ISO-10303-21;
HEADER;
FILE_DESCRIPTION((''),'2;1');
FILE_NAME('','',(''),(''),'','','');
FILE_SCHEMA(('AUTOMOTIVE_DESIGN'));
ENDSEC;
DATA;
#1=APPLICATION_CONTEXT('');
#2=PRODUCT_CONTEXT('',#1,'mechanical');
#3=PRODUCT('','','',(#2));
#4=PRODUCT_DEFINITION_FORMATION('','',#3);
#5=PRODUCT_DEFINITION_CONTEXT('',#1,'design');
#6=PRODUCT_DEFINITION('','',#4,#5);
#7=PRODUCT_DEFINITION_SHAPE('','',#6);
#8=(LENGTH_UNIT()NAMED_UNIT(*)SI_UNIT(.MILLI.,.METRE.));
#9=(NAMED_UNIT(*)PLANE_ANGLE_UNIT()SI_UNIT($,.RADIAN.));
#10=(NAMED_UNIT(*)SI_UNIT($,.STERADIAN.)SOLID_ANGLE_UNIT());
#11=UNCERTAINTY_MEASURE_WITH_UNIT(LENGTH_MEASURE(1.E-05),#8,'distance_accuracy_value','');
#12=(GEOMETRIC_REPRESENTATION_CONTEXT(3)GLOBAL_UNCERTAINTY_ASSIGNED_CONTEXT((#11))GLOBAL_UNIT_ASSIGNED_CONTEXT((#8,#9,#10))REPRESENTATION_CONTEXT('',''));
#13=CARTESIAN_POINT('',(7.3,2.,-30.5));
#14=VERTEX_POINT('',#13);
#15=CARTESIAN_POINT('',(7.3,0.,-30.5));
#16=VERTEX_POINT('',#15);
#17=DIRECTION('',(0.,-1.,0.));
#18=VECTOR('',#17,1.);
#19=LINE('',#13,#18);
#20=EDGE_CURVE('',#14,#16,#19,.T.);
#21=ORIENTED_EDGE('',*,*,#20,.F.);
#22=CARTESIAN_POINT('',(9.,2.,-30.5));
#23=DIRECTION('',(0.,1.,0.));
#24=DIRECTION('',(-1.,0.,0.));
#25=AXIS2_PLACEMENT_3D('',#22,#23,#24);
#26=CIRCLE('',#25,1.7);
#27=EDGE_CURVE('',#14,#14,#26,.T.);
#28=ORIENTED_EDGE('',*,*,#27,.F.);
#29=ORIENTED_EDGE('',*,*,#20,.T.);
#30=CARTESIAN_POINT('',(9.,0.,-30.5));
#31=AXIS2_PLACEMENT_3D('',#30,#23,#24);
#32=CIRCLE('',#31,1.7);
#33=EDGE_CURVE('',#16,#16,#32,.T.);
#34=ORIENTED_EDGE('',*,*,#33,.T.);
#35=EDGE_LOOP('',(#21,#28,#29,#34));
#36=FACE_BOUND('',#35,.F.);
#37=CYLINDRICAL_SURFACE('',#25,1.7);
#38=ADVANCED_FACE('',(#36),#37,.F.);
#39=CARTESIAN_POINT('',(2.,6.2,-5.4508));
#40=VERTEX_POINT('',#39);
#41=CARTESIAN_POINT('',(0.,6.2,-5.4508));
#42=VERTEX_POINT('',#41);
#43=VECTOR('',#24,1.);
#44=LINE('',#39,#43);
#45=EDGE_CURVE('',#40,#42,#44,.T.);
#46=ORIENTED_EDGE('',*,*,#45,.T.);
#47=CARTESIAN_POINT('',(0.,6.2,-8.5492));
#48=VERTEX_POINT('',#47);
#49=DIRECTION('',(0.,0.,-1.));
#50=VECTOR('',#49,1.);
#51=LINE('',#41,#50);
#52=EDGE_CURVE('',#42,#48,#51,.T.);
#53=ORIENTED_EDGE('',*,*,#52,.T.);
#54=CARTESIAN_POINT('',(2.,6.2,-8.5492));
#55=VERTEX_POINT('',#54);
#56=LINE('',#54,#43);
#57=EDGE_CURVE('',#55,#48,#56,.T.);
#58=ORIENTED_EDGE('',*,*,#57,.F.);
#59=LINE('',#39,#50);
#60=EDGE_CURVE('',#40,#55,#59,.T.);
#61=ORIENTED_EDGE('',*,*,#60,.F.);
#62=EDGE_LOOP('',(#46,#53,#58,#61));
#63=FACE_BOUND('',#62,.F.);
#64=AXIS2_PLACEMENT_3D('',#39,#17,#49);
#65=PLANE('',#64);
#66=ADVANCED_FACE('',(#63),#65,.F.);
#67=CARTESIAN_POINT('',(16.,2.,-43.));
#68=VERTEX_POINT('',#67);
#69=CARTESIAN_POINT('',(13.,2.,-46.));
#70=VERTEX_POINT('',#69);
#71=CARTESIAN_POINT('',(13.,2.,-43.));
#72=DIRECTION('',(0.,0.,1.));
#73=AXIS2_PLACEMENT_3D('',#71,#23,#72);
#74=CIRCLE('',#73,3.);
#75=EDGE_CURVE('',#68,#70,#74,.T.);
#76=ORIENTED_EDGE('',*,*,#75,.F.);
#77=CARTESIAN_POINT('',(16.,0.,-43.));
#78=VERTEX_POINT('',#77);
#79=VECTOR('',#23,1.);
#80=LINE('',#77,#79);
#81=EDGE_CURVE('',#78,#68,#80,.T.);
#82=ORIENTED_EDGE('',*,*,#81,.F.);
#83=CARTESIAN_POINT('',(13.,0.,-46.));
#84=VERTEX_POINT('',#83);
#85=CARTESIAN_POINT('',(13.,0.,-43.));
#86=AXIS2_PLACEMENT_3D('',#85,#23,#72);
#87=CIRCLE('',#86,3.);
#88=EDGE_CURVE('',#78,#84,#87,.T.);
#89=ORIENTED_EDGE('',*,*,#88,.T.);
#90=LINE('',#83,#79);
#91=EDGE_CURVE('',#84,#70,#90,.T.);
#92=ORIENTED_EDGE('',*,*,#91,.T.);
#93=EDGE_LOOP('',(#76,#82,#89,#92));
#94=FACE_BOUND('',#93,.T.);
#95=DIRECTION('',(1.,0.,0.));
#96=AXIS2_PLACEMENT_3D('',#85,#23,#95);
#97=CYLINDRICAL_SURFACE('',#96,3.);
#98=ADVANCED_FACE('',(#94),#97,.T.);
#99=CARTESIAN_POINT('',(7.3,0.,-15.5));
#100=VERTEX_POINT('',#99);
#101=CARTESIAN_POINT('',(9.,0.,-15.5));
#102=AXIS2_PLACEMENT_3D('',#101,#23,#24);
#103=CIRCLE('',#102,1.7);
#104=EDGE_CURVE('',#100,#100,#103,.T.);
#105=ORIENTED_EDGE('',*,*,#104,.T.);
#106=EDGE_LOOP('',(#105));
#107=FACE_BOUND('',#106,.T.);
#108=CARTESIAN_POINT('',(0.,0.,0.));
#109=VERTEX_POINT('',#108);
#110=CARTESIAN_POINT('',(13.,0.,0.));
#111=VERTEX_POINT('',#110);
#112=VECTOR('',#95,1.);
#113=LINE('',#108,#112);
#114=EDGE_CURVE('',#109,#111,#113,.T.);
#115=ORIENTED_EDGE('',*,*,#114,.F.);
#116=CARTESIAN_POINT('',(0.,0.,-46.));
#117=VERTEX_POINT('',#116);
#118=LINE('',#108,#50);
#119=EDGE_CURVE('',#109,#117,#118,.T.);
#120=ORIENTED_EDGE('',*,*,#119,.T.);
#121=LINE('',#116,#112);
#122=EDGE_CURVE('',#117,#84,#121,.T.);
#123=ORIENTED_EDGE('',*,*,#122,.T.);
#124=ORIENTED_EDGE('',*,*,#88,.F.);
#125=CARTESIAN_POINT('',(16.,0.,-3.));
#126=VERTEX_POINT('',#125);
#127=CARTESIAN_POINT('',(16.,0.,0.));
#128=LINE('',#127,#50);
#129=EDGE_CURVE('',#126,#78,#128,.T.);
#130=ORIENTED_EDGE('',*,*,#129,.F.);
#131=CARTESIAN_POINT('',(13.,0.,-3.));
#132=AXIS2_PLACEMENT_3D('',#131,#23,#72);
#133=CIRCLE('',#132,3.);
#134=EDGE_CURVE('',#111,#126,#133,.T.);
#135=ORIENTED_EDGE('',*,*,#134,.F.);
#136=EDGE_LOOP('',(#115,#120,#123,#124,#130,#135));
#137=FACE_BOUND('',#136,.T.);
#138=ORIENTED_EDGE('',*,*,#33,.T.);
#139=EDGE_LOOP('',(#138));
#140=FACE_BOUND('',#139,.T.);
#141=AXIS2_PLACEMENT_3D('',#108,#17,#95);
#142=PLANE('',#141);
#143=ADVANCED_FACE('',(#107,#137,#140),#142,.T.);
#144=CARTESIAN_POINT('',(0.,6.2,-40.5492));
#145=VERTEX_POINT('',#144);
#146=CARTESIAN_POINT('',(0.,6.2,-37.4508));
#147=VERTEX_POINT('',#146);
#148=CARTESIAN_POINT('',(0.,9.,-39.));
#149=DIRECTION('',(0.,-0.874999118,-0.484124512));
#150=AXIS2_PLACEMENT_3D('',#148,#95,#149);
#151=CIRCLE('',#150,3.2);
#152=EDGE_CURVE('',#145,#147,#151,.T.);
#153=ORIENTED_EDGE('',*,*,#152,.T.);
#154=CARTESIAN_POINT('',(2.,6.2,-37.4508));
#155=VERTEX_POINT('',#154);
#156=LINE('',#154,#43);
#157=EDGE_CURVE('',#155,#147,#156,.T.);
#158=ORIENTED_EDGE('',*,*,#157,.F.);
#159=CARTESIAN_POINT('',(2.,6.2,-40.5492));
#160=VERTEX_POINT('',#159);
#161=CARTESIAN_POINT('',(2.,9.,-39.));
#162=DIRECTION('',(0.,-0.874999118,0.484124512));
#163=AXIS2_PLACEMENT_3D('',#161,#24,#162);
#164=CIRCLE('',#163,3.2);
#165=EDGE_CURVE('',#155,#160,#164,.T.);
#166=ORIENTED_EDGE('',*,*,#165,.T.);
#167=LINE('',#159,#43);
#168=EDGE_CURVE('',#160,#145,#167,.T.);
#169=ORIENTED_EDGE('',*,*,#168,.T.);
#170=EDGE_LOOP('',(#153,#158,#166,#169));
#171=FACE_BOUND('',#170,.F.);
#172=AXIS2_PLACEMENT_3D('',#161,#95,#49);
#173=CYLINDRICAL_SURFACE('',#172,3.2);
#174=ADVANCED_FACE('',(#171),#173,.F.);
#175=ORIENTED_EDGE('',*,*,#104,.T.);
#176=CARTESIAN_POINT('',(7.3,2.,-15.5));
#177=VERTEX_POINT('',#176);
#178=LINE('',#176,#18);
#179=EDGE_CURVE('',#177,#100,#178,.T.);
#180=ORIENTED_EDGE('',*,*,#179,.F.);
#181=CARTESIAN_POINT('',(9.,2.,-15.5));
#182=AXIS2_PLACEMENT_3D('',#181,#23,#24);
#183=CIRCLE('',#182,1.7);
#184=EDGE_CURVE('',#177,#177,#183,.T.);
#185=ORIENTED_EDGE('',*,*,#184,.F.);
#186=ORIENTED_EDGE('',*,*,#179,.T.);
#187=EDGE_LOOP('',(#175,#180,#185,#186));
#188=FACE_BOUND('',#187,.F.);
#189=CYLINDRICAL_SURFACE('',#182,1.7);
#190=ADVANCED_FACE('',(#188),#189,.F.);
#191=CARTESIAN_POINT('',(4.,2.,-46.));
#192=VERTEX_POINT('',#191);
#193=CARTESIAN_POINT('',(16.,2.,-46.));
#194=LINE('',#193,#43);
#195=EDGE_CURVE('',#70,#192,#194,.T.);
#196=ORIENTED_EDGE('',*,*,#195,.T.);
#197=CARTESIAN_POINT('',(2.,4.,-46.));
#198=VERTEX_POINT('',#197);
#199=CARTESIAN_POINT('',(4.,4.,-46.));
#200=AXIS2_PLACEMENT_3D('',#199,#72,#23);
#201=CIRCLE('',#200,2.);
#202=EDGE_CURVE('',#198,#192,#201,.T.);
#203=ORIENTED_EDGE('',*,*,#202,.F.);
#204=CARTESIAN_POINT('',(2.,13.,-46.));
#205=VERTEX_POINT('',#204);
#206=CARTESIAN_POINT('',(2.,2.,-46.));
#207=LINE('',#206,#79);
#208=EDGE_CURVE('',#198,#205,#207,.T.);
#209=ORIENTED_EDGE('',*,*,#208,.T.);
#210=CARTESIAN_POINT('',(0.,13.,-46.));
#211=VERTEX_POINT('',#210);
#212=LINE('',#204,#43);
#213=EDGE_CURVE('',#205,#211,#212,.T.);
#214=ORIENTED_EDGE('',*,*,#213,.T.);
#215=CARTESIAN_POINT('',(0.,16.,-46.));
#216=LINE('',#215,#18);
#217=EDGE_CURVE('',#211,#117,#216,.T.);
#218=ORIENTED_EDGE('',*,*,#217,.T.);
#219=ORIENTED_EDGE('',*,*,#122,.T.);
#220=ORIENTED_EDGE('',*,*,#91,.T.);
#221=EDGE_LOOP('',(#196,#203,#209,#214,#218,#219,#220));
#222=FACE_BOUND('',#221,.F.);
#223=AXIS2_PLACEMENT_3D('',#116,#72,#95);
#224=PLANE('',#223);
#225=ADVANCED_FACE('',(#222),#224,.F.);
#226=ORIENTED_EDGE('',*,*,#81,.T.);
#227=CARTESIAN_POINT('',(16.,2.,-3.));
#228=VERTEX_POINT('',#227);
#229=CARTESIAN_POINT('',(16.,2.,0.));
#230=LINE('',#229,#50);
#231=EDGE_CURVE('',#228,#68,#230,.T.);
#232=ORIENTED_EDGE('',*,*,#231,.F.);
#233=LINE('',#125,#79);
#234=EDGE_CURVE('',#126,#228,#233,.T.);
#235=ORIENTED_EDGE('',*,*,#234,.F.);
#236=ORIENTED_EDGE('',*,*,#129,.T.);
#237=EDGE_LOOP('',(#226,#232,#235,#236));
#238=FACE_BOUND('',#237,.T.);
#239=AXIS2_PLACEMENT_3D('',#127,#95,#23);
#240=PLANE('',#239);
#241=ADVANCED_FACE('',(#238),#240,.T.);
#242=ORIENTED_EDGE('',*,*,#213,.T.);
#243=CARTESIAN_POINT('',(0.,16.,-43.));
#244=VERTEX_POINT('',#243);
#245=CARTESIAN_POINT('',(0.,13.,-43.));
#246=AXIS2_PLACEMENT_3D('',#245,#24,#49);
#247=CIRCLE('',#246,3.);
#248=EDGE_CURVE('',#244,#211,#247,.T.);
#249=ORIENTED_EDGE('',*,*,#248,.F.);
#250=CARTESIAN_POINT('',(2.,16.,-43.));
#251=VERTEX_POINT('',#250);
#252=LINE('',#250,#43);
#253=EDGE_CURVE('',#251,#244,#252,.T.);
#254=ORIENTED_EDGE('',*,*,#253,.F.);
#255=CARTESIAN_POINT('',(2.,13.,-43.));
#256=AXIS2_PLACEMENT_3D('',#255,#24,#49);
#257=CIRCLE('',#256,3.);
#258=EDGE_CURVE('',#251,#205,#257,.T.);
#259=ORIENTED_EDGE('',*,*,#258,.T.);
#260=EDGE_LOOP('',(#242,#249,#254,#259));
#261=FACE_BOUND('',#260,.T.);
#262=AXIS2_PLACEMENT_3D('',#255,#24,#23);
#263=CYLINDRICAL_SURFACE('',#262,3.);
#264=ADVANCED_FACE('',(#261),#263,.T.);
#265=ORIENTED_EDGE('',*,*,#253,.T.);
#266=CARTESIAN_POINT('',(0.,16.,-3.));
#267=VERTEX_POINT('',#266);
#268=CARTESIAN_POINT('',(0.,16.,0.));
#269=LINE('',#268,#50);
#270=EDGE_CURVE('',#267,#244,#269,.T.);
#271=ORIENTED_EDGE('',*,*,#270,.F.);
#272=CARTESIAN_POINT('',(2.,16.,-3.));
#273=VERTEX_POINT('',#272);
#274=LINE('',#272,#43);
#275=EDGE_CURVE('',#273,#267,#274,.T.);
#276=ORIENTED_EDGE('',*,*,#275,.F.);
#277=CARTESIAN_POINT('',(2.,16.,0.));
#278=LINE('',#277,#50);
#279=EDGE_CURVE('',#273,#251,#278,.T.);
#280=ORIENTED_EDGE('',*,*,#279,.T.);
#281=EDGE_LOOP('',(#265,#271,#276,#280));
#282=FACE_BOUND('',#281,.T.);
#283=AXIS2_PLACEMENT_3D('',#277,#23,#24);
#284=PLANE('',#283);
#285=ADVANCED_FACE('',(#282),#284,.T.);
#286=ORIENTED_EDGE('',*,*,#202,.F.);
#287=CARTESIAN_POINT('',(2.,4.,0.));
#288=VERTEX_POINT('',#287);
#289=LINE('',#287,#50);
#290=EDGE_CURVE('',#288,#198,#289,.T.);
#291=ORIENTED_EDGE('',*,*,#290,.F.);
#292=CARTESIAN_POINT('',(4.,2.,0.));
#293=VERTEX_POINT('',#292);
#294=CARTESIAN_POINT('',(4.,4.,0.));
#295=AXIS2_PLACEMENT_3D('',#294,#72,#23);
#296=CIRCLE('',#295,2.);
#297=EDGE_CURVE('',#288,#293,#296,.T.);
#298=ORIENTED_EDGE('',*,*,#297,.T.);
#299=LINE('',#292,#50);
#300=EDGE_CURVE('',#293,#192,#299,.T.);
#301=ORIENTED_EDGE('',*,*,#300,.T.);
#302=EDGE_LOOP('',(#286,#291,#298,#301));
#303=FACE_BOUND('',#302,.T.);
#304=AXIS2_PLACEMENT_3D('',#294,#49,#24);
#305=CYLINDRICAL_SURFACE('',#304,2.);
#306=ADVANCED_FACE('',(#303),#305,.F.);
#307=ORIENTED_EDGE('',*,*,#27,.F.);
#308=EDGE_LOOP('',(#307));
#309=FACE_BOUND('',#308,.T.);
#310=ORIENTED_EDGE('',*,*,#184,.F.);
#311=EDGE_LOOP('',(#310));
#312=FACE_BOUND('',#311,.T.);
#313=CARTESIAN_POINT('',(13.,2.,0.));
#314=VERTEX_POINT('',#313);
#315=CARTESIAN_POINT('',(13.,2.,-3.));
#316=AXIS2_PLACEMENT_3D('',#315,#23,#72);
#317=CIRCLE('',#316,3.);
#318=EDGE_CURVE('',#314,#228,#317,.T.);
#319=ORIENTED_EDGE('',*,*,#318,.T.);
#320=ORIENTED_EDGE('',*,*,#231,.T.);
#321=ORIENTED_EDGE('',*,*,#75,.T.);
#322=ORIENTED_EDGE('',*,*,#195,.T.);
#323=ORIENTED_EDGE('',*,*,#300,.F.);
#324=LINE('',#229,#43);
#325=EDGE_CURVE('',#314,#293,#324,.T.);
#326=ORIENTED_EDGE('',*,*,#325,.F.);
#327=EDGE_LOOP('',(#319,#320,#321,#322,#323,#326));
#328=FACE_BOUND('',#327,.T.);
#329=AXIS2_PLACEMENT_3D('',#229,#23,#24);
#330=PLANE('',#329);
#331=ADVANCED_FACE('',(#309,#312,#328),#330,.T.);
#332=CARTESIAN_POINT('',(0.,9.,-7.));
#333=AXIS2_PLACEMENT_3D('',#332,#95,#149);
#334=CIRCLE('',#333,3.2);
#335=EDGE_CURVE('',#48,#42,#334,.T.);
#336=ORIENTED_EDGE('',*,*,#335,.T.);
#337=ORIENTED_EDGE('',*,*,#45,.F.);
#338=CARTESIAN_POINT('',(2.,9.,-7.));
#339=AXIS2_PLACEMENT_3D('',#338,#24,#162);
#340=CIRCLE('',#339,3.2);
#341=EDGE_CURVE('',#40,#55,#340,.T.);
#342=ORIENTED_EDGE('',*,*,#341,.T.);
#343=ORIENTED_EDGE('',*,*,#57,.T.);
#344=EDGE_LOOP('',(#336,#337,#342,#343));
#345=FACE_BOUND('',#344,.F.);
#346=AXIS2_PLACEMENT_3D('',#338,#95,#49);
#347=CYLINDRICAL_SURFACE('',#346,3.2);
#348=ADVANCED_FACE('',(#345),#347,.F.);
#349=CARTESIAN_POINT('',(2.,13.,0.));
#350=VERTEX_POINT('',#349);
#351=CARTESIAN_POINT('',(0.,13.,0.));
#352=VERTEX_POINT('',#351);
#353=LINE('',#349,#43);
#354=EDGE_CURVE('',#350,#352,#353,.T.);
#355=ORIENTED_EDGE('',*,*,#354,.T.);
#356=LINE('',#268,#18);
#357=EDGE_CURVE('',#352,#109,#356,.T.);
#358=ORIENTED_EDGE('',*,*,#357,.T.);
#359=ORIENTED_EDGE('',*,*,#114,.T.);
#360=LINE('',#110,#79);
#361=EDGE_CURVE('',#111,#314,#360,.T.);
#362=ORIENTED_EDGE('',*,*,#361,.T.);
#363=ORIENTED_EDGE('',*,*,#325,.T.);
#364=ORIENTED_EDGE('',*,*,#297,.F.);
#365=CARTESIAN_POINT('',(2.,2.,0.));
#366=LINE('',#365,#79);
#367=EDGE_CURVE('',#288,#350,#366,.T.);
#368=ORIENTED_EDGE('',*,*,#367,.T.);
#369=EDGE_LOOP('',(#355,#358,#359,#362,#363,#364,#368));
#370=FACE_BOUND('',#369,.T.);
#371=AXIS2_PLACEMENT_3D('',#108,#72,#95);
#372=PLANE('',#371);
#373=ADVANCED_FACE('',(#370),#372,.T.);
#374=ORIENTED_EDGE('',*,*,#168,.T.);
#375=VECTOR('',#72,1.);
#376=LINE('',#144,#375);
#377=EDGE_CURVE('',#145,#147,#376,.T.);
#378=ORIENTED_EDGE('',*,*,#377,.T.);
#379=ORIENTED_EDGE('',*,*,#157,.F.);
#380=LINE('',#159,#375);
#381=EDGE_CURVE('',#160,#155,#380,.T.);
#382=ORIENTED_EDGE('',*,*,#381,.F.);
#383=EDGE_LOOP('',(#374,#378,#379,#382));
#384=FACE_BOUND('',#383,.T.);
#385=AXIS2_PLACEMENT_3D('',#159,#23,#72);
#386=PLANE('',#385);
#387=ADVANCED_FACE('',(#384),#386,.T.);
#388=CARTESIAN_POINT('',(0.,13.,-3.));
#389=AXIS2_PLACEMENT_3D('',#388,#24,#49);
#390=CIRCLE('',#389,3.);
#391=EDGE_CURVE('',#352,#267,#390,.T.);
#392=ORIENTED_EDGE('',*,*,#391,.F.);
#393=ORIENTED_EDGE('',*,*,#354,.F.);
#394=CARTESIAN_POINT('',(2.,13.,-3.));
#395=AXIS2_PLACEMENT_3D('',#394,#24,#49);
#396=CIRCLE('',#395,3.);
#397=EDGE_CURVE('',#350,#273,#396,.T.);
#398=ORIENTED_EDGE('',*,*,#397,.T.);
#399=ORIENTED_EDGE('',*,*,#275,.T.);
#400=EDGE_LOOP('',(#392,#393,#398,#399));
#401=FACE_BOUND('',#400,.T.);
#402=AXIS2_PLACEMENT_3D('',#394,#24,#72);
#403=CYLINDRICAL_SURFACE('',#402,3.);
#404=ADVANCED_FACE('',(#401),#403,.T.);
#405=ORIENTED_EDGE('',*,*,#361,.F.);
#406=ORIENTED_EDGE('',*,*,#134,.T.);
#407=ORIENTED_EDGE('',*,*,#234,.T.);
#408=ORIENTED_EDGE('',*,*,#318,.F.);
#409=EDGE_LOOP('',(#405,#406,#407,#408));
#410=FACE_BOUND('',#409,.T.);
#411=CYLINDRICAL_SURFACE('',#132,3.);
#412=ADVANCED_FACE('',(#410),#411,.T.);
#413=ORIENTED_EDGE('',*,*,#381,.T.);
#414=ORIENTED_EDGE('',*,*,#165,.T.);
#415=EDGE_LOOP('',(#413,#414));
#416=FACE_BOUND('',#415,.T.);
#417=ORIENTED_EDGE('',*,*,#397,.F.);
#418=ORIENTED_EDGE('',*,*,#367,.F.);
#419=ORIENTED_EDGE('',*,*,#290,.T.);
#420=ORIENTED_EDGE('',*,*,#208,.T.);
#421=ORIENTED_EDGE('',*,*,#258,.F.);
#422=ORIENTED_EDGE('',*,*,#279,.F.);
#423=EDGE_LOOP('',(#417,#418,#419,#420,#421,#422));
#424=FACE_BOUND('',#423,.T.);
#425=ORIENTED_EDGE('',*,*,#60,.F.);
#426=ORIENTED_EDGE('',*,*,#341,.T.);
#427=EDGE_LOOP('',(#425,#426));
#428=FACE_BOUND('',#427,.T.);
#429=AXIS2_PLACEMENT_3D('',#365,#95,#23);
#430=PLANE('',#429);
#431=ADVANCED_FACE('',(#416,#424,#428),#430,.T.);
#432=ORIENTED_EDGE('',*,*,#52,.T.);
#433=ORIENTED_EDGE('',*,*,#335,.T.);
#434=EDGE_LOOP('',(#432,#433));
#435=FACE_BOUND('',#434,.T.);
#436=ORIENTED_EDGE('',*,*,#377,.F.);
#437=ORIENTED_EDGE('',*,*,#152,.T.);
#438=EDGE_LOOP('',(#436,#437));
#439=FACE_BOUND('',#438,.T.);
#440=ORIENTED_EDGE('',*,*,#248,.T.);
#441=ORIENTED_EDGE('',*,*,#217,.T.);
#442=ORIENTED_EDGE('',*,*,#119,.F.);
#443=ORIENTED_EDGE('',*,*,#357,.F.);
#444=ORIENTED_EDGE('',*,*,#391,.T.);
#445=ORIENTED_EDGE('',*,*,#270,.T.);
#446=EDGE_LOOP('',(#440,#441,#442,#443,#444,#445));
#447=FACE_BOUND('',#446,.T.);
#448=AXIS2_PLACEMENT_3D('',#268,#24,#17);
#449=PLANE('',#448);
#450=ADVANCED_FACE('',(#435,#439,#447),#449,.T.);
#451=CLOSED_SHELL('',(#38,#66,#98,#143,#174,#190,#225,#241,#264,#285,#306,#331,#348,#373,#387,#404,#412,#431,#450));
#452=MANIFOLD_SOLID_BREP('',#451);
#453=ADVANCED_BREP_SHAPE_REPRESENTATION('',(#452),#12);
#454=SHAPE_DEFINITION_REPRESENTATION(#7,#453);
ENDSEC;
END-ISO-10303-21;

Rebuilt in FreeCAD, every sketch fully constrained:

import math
import FreeCAD as App
import Part
import Sketcher


def edges_at(feature, points):
    """Names of the edges that pass closest to the given points."""
    edges = feature.Shape.Edges
    near = lambda p: min(range(len(edges)), key=lambda i: edges[i].distToShape(Part.Vertex(*p))[0])
    return sorted({f"Edge{near(p) + 1}" for p in points})

doc = App.newDocument("Part")
body = doc.addObject("PartDesign::Body", "Body")

# Sketch on XY plane
sketch1 = doc.addObject("Sketcher::SketchObject", "Sketch")
body.addObject(sketch1)
sketch1.AttachmentSupport = (doc.XY_Plane, [""])
sketch1.MapMode = "FlatFace"
sketch1.addGeometry(Part.LineSegment(App.Vector(0, 16, 0), App.Vector(0, 0, 0)), False)
sketch1.addGeometry(Part.LineSegment(App.Vector(0, 0, 0), App.Vector(16, 0, 0)), False)
sketch1.addGeometry(Part.LineSegment(App.Vector(16, 0, 0), App.Vector(16, 2, 0)), False)
sketch1.addGeometry(Part.LineSegment(App.Vector(16, 2, 0), App.Vector(2, 2, 0)), False)
sketch1.addGeometry(Part.LineSegment(App.Vector(2, 2, 0), App.Vector(2, 16, 0)), False)
sketch1.addGeometry(Part.LineSegment(App.Vector(2, 16, 0), App.Vector(0, 16, 0)), False)
sketch1.addConstraint(Sketcher.Constraint("Coincident", 0, 2, 1, 1))
sketch1.addConstraint(Sketcher.Constraint("Coincident", 1, 2, 2, 1))
sketch1.addConstraint(Sketcher.Constraint("Coincident", 2, 2, 3, 1))
sketch1.addConstraint(Sketcher.Constraint("Coincident", 3, 2, 4, 1))
sketch1.addConstraint(Sketcher.Constraint("Coincident", 4, 2, 5, 1))
sketch1.addConstraint(Sketcher.Constraint("Coincident", 5, 2, 0, 1))
sketch1.addConstraint(Sketcher.Constraint("Vertical", 0))
sketch1.addConstraint(Sketcher.Constraint("Horizontal", 1))
sketch1.addConstraint(Sketcher.Constraint("Vertical", 2))
sketch1.addConstraint(Sketcher.Constraint("Horizontal", 3))
sketch1.addConstraint(Sketcher.Constraint("Vertical", 4))
sketch1.addConstraint(Sketcher.Constraint("Horizontal", 5))
sketch1.addConstraint(Sketcher.Constraint("Coincident", 0, 2, -1, 1))
sketch1.addConstraint(Sketcher.Constraint("Equal", 1, 0))
sketch1.addConstraint(Sketcher.Constraint("Equal", 5, 2))
sketch1.addConstraint(Sketcher.Constraint("DistanceX", 1, 1, 1, 2, 16.0))
sketch1.addConstraint(Sketcher.Constraint("DistanceX", 5, 2, 5, 1, 2.0))
pad1 = doc.addObject("PartDesign::Pad", "Pad")
body.addObject(pad1)
pad1.Profile = sketch1
pad1.Length = 46
pad1.Reversed = True

# Sketch on XZ plane
sketch2 = doc.addObject("Sketcher::SketchObject", "Sketch001")
body.addObject(sketch2)
sketch2.AttachmentSupport = (doc.XZ_Plane, [""])
sketch2.MapMode = "FlatFace"
sketch2.AttachmentOffset = App.Placement(App.Vector(0, 0, -2), App.Rotation())
sketch2.addGeometry(Part.Circle(App.Vector(9, -15.5, 0), App.Vector(0, 0, 1), 1.7), False)
sketch2.addGeometry(Part.Circle(App.Vector(9, -30.5, 0), App.Vector(0, 0, 1), 1.7), False)
sketch2.addConstraint(Sketcher.Constraint("Equal", 0, 1))
sketch2.addConstraint(Sketcher.Constraint("Vertical", 0, 3, 1, 3))
sketch2.addConstraint(Sketcher.Constraint("Diameter", 0, 3.4))
sketch2.addConstraint(Sketcher.Constraint("DistanceX", -1, 1, 0, 3, 9.0))
sketch2.addConstraint(Sketcher.Constraint("DistanceY", 1, 3, 0, 3, 15.0))
sketch2.addConstraint(Sketcher.Constraint("DistanceY", 0, 3, -1, 1, 15.5))
pocket1 = doc.addObject("PartDesign::Pocket", "Pocket")
body.addObject(pocket1)
pocket1.Profile = sketch2
pocket1.Length = 2
pocket1.Reversed = True

# Sketch on YZ plane
sketch3 = doc.addObject("Sketcher::SketchObject", "Sketch002")
body.addObject(sketch3)
sketch3.AttachmentSupport = (doc.YZ_Plane, [""])
sketch3.MapMode = "FlatFace"
sketch3.AttachmentOffset = App.Placement(App.Vector(0, 0, 2), App.Rotation())
sketch3.addGeometry(Part.ArcOfCircle(Part.Circle(App.Vector(9, -7, 0), App.Vector(0, 0, 1), 3.2), math.radians(-151.044871), math.radians(151.044871)), False)
sketch3.addGeometry(Part.LineSegment(App.Vector(6.2, -8.5492, 0), App.Vector(6.2, -5.4508, 0)), False)
sketch3.addGeometry(Part.ArcOfCircle(Part.Circle(App.Vector(9, -39, 0), App.Vector(0, 0, 1), 3.2), math.radians(-151.044871), math.radians(151.044871)), False)
sketch3.addGeometry(Part.LineSegment(App.Vector(6.2, -40.5492, 0), App.Vector(6.2, -37.4508, 0)), False)
sketch3.addConstraint(Sketcher.Constraint("Coincident", 0, 1, 1, 1))
sketch3.addConstraint(Sketcher.Constraint("Coincident", 1, 2, 0, 2))
sketch3.addConstraint(Sketcher.Constraint("Coincident", 2, 1, 3, 1))
sketch3.addConstraint(Sketcher.Constraint("Coincident", 3, 2, 2, 2))
sketch3.addConstraint(Sketcher.Constraint("Vertical", 1))
sketch3.addConstraint(Sketcher.Constraint("Vertical", 3))
sketch3.addConstraint(Sketcher.Constraint("Equal", 0, 2))
sketch3.addConstraint(Sketcher.Constraint("Vertical", 0, 3, 2, 3))
sketch3.addConstraint(Sketcher.Constraint("Vertical", 1, 2, 2, 1))
sketch3.addConstraint(Sketcher.Constraint("Radius", 0, 3.2))
sketch3.addConstraint(Sketcher.Constraint("DistanceX", -1, 1, 0, 3, 9.0))
sketch3.addConstraint(Sketcher.Constraint("DistanceY", 0, 3, -1, 1, 7.0))
sketch3.addConstraint(Sketcher.Constraint("DistanceY", 2, 3, -1, 1, 39.0))
sketch3.addConstraint(Sketcher.Constraint("DistanceX", -1, 1, 0, 1, 6.2))
pocket2 = doc.addObject("PartDesign::Pocket", "Pocket001")
body.addObject(pocket2)
pocket2.Profile = sketch3
pocket2.Length = 2
doc.recompute()

fillet = doc.addObject("PartDesign::Fillet", "Fillet")
body.addObject(fillet)
fillet.Base = (pocket2, edges_at(pocket2, [(2, 2, -23)]))
fillet.Radius = 2
doc.recompute()

fillet2 = doc.addObject("PartDesign::Fillet", "Fillet001")
body.addObject(fillet2)
fillet2.Base = (fillet, edges_at(fillet, [
    (1, 16, -46),
    (1, 16, 0),
    (16, 1, 0),
    (16, 1, -46),
]))
fillet2.Radius = 3

doc.recompute()
